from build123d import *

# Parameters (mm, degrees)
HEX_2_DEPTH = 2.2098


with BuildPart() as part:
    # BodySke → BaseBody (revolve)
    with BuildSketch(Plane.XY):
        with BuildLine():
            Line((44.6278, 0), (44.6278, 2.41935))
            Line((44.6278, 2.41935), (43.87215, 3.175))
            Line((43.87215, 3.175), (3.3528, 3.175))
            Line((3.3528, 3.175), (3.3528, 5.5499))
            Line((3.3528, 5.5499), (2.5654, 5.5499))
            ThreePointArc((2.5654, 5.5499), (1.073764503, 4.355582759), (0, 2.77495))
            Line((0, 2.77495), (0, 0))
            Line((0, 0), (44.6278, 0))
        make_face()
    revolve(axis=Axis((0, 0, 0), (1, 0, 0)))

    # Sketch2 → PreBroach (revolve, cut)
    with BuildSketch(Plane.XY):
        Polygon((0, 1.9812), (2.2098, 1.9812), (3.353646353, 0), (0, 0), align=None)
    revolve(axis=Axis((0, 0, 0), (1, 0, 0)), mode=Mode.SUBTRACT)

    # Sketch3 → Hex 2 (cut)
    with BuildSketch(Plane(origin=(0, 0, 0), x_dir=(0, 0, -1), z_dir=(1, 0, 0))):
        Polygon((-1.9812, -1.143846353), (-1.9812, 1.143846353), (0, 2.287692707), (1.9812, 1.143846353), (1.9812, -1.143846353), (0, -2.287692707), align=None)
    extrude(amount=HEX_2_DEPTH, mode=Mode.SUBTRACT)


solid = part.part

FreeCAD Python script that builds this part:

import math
import FreeCAD as App
import Part
import Sketcher

V = App.Vector
Q = App.Units.Quantity


def add_polygon(sketch, points):
    """Adds a closed chain of lines whose ends are joined by coincident constraints."""
    first, n = sketch.GeometryCount, len(points)
    for a, b in zip(points, points[1:] + points[:1]):
        sketch.addGeometry(Part.LineSegment(App.Vector(*a, 0), App.Vector(*b, 0)), False)
    for i in range(n):
        sketch.addConstraint(Sketcher.Constraint("Coincident", first + i, 2, first + (i + 1) % n, 1))

doc = App.newDocument("Part")
body = doc.addObject("PartDesign::Body", "Body")

# Sketch on XY plane
sketch1 = body.newObject("Sketcher::SketchObject", "Sketch")
sketch1.AttachmentSupport = (doc.getObject("XY_Plane"), [""])
sketch1.MapMode = "FlatFace"
sketch1.addGeometry([
    Part.LineSegment(V(44.6278, 0, 0), V(44.6278, 2.41935, 0)),  # 0
    Part.LineSegment(V(44.6278, 2.41935, 0), V(43.87215, 3.175, 0)),  # 1
    Part.LineSegment(V(43.87215, 3.175, 0), V(3.3528, 3.175, 0)),  # 2
    Part.LineSegment(V(3.3528, 3.175, 0), V(3.3528, 5.5499, 0)),  # 3
    Part.LineSegment(V(3.3528, 5.5499, 0), V(2.5654, 5.5499, 0)),  # 4
    Part.ArcOfCircle(Part.Circle(V(5.785125, 0, 0), V(0, 0, 1), 6.416231), math.radians(120.119782), math.radians(154.374371)),  # 5
    Part.LineSegment(V(0, 2.77495, 0), V(0, 0, 0)),  # 6
    Part.LineSegment(V(0, 0, 0), V(44.6278, 0, 0)),  # 7
], False)
sketch1.addConstraint([
    Sketcher.Constraint("Coincident", 0, 2, 1, 1),
    Sketcher.Constraint("Coincident", 1, 2, 2, 1),
    Sketcher.Constraint("Coincident", 2, 2, 3, 1),
    Sketcher.Constraint("Coincident", 3, 2, 4, 1),
    Sketcher.Constraint("Coincident", 4, 2, 5, 1),
    Sketcher.Constraint("Coincident", 5, 2, 6, 1),
    Sketcher.Constraint("Coincident", 6, 2, 7, 1),
    Sketcher.Constraint("Coincident", 7, 2, 0, 1),
    Sketcher.Constraint("Vertical", 0),
    Sketcher.Constraint("Horizontal", 2),
    Sketcher.Constraint("Vertical", 3),
    Sketcher.Constraint("Horizontal", 4),
    Sketcher.Constraint("Vertical", 6),
    Sketcher.Constraint("Horizontal", 7),
    Sketcher.Constraint("Coincident", 6, 2, -1, 1),
    Sketcher.Constraint("PointOnObject", 5, 3, -1),
    Sketcher.Constraint("Angle", 1, Q("135 deg")),
    Sketcher.Constraint("DistanceX", 4, 2, 4, 1, Q("0.031 in")),
    Sketcher.Constraint("DistanceX", 7, 1, 7, 2, Q("1.757 in")),
    Sketcher.Constraint("DistanceY", 3, 1, 3, 2, Q("0.0935 in")),
    Sketcher.Constraint("DistanceY", -1, 1, 1, 2, Q("0.125 in")),
    Sketcher.Constraint("DistanceX", -1, 1, 2, 2, Q("0.132 in")),
    Sketcher.Constraint("Radius", 5, 6.416231),
    Sketcher.Constraint("DistanceX", 2, 2, 2, 1, 40.51935),
])
revolution = body.newObject("PartDesign::Revolution", "Revolution")
revolution.Profile = sketch1
revolution.ReferenceAxis = (sketch1, ["H_Axis"])
revolution.Angle = 360

# Sketch on XY plane
sketch2 = body.newObject("Sketcher::SketchObject", "Sketch001")
sketch2.AttachmentSupport = (doc.getObject("XY_Plane"), [""])
sketch2.MapMode = "FlatFace"
add_polygon(sketch2, [(2.2098, 1.9812), (0, 1.9812), (0, 0), (3.353646, 0)])  # lines 0-3
sketch2.addConstraint([
    Sketcher.Constraint("Horizontal", 0),
    Sketcher.Constraint("Vertical", 1),
    Sketcher.Constraint("Horizontal", 2),
    Sketcher.Constraint("Coincident", 1, 2, -1, 1),
    Sketcher.Constraint("Angle", 3, Q("120 deg")),
    Sketcher.Constraint("DistanceX", 0, 2, 0, 1, Q("0.087 in")),
    Sketcher.Constraint("DistanceY", 1, 2, 1, 1, Q("0.078 in")),
])
groove = body.newObject("PartDesign::Groove", "Groove")
groove.Profile = sketch2
groove.ReferenceAxis = (sketch2, ["H_Axis"])
groove.Angle = 360

# Sketch on YZ plane
sketch3 = body.newObject("Sketcher::SketchObject", "Sketch002")
sketch3.AttachmentSupport = (doc.getObject("YZ_Plane"), [""])
sketch3.MapMode = "FlatFace"
add_polygon(sketch3, [(1.143846, 1.9812), (-1.143846, 1.9812), (-2.287693, 0), (-1.143846, -1.9812), (1.143846, -1.9812), (2.287693, 0)])  # lines 0-5
sketch3.addConstraint([
    Sketcher.Constraint("Horizontal", 0),
    Sketcher.Constraint("Horizontal", 3),
    Sketcher.Constraint("Symmetric", 0, 2, 3, 2, -1, 1),
    Sketcher.Constraint("Symmetric", 1, 2, 4, 2, -1, 1),
    Sketcher.Constraint("PointOnObject", 1, 2, -1),
    Sketcher.Constraint("Parallel", 2, 5),
    Sketcher.Constraint("Vertical", 0, 2, 2, 2),
    Sketcher.Constraint("Angle", 1, Q("-120 deg")),
    Sketcher.Constraint("DistanceY", -1, 1, 0, 2, Q("0.078 in")),
    Sketcher.Constraint("DistanceX", 1, 2, 3, 2, Q("0.1351 in")),
])
pocket1 = body.newObject("PartDesign::Pocket", "Pocket")
pocket1.Profile = sketch3
pocket1.Length = Q("0.087 in")
pocket1.Reversed = True

doc.recompute()
